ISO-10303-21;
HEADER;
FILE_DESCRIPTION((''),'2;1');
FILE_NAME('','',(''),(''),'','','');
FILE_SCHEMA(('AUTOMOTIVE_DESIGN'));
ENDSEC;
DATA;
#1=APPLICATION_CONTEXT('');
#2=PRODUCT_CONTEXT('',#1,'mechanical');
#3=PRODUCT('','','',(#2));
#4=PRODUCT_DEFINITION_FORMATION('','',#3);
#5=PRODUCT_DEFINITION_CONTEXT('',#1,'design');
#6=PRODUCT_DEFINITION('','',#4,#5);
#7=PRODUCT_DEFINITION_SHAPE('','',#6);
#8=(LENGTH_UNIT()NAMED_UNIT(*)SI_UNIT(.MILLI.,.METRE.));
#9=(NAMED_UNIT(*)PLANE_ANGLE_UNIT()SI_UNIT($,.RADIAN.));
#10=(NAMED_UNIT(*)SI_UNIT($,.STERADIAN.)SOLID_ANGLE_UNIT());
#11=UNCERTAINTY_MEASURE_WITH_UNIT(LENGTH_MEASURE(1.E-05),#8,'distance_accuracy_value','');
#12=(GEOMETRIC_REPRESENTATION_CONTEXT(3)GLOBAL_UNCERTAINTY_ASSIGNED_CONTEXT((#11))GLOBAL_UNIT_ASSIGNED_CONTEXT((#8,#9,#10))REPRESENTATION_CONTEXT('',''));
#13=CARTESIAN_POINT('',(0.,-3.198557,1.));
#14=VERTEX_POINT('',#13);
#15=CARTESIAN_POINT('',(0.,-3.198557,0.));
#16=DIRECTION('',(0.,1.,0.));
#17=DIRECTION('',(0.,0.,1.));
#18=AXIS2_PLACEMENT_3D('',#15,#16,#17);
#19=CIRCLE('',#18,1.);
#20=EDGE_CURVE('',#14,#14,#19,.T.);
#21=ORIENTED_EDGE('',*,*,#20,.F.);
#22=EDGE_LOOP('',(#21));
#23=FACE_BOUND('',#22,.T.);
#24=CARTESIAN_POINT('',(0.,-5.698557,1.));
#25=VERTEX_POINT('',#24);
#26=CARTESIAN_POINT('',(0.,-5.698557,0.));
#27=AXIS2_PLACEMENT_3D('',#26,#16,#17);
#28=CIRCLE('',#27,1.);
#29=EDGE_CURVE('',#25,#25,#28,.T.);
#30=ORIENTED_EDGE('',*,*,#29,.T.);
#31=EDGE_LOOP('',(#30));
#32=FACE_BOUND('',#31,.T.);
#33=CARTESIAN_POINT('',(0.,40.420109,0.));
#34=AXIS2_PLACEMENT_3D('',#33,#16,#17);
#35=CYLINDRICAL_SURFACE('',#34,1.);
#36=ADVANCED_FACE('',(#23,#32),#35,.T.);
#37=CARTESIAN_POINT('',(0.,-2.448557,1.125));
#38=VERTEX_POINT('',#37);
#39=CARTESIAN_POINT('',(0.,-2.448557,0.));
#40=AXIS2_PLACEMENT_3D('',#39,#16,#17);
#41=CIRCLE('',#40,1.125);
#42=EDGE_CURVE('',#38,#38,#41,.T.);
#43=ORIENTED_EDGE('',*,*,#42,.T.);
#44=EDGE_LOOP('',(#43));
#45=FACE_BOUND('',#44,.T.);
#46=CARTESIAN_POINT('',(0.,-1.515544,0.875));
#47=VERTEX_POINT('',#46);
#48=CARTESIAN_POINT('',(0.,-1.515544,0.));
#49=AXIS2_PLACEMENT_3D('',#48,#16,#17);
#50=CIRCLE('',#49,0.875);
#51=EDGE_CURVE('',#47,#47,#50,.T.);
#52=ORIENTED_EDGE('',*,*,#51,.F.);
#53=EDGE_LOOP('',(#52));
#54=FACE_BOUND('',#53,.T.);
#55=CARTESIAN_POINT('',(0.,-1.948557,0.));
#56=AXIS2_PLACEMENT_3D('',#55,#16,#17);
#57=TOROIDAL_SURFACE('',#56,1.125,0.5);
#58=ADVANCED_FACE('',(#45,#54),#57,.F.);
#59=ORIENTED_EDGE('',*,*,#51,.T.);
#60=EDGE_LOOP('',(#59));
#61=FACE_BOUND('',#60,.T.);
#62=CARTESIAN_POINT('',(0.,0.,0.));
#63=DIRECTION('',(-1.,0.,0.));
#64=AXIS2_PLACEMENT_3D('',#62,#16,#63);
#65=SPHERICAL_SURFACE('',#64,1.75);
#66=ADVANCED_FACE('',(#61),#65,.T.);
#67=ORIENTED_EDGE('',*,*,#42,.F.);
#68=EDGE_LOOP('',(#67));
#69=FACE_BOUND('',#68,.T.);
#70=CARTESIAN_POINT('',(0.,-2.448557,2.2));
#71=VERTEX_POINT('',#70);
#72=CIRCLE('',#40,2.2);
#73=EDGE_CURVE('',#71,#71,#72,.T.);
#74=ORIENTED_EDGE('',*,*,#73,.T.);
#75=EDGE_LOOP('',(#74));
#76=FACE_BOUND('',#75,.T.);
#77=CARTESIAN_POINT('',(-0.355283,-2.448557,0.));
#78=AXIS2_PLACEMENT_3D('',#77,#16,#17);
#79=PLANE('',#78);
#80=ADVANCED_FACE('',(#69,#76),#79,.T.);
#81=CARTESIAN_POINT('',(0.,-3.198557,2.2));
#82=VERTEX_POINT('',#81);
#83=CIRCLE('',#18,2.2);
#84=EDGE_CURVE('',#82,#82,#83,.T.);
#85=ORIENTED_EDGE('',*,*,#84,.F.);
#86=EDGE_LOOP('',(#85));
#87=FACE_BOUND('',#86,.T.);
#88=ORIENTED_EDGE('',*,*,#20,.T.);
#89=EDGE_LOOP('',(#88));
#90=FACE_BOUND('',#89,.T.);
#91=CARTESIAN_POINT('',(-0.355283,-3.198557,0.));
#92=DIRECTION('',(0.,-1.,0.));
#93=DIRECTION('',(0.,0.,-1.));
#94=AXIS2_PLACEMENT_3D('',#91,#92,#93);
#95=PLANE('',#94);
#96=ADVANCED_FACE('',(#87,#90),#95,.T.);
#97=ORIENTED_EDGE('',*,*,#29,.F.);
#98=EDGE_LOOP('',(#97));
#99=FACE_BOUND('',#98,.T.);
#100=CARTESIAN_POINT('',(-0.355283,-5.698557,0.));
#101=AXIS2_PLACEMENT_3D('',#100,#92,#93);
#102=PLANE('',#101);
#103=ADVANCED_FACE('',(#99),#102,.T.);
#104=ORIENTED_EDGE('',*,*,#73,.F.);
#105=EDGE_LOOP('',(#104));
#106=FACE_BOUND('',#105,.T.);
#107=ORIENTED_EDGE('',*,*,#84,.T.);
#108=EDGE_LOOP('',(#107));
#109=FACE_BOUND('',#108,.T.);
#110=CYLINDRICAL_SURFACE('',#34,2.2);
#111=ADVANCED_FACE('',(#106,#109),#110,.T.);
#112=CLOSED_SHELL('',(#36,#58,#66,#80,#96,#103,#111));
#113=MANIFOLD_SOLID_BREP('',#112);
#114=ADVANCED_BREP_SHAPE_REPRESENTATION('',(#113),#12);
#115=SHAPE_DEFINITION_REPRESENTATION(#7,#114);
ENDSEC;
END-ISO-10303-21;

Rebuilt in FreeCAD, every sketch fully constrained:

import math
import FreeCAD as App
import Part
import Sketcher
from FreeCAD import Vector
Q = App.Units.Quantity

doc = App.newDocument("Part")
body = doc.addObject("PartDesign::Body", "Body")

# Sketch on XY plane
sketch1 = doc.addObject("Sketcher::SketchObject", "Sketch")
body.addObject(sketch1)
sketch1.AttachmentSupport = (doc.XY_Plane, [""])
sketch1.MapMode = "FlatFace"
sketch1.addGeometry([
    Part.ArcOfCircle(Part.Circle(Vector(-1.1, -1.9, 0), Vector(0, 0, 1), 0.5), math.radians(-90), math.radians(60)),  # 0
    Part.LineSegment(Vector(-1.1, -2.4, 0), Vector(-2.2, -2.4, 0)),  # 1
    Part.LineSegment(Vector(-2.2, -2.4, 0), Vector(-2.2, -3.2, 0)),  # 2
    Part.LineSegment(Vector(-2.2, -3.2, 0), Vector(-1, -3.2, 0)),  # 3
    Part.LineSegment(Vector(-1, -3.2, 0), Vector(-1, -5.7, 0)),  # 4
    Part.LineSegment(Vector(-1, -5.7, 0), Vector(0, -5.7, 0)),  # 5
    Part.LineSegment(Vector(0, -5.7, 0), Vector(0, 1.8, 0)),  # 6
    Part.ArcOfCircle(Part.Circle(Vector(0, 0, 0), Vector(0, 0, 1), 1.8), math.radians(90), math.radians(240)),  # 7
], False)
sketch1.addConstraint([
    Sketcher.Constraint("Tangent", 0, 1, 1, 1),
    Sketcher.Constraint("Coincident", 1, 2, 2, 1),
    Sketcher.Constraint("Coincident", 2, 2, 3, 1),
    Sketcher.Constraint("Coincident", 3, 2, 4, 1),
    Sketcher.Constraint("Coincident", 4, 2, 5, 1),
    Sketcher.Constraint("Coincident", 5, 2, 6, 1),
    Sketcher.Constraint("Coincident", 6, 2, 7, 1),
    Sketcher.Constraint("Tangent", 7, 2, 0, 2),
    Sketcher.Constraint("Horizontal", 1),
    Sketcher.Constraint("Vertical", 2),
    Sketcher.Constraint("Horizontal", 3),
    Sketcher.Constraint("Vertical", 4),
    Sketcher.Constraint("Horizontal", 5),
    Sketcher.Constraint("Vertical", 6),
    Sketcher.Constraint("Coincident", 7, 3, -1, 1),
    Sketcher.Constraint("PointOnObject", 5, 2, -2),
    Sketcher.Constraint("Radius", 0, Q("0.5 mm")),
    Sketcher.Constraint("DistanceX", 5, 1, 5, 2, Q("1 mm")),
    Sketcher.Constraint("Radius", 7, Q("1.75 mm")),
    Sketcher.Constraint("DistanceX", 3, 1, 3, 2, Q("1.2 mm")),
    Sketcher.Constraint("DistanceY", 4, 2, 4, 1, Q("2.5 mm")),
    Sketcher.Constraint("DistanceY", 2, 2, 2, 1, Q("0.75 mm")),
    Sketcher.Constraint("DistanceX", 1, 2, 1, 1, Q("1.075 mm")),
])
revolution = doc.addObject("PartDesign::Revolution", "Revolution")
body.addObject(revolution)
revolution.Profile = sketch1
revolution.ReferenceAxis = (sketch1, ["V_Axis"])
revolution.Angle = 360

doc.recompute()
